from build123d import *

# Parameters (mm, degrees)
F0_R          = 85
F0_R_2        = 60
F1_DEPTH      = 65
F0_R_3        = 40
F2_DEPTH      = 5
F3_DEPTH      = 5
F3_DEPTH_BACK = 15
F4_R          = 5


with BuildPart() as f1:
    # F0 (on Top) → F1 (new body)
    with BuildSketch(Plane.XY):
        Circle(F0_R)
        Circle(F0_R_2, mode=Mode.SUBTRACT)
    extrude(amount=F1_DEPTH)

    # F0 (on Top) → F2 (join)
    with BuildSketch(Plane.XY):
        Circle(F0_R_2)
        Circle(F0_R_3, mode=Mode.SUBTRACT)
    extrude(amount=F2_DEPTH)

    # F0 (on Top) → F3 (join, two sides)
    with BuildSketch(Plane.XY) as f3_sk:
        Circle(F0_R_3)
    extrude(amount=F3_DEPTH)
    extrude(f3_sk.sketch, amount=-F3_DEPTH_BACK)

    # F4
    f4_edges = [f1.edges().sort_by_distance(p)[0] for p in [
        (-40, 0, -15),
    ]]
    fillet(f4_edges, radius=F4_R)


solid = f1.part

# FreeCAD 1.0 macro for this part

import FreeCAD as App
import Part
import Sketcher


def edges_at(feature, points):
    """Names of the edges that pass closest to the given points."""
    edges = feature.Shape.Edges
    near = lambda p: min(range(len(edges)), key=lambda i: edges[i].distToShape(Part.Vertex(*p))[0])
    return sorted({f"Edge{near(p) + 1}" for p in points})

doc = App.newDocument("Part")
body = doc.addObject("PartDesign::Body", "Body")

# Sketch on XY plane
sketch1 = body.newObject("Sketcher::SketchObject", "Sketch")
sketch1.AttachmentSupport = (doc.getObject("XY_Plane"), [""])
sketch1.MapMode = "FlatFace"
sketch1.addGeometry([
    Part.Circle(App.Vector(0, 0, 0), App.Vector(0, 0, 1), 85),
    Part.Circle(App.Vector(0, 0, 0), App.Vector(0, 0, 1), 60),
], False)
sketch1.addConstraint([
    Sketcher.Constraint("Coincident", 0, 3, -1, 1),
    Sketcher.Constraint("Coincident", 1, 3, -1, 1),
    Sketcher.Constraint("Diameter", 0, 170.0),
    Sketcher.Constraint("Diameter", 1, 120.0),
])
pad1 = body.newObject("PartDesign::Pad", "Pad")
pad1.Profile = sketch1
pad1.Length = 65

# Sketch on XY plane
sketch2 = body.newObject("Sketcher::SketchObject", "Sketch001")
sketch2.AttachmentSupport = (doc.getObject("XY_Plane"), [""])
sketch2.MapMode = "FlatFace"
sketch2.addGeometry([
    Part.Circle(App.Vector(0, 0, 0), App.Vector(0, 0, 1), 60),
    Part.Circle(App.Vector(0, 0, 0), App.Vector(0, 0, 1), 40),
], False)
sketch2.addConstraint([
    Sketcher.Constraint("Coincident", 0, 3, -1, 1),
    Sketcher.Constraint("Coincident", 1, 3, -1, 1),
    Sketcher.Constraint("Diameter", 0, 120.0),
    Sketcher.Constraint("Diameter", 1, 80.0),
])
pad2 = body.newObject("PartDesign::Pad", "Pad001")
pad2.Profile = sketch2
pad2.Length = 5

# Sketch on XY plane
sketch3 = body.newObject("Sketcher::SketchObject", "Sketch002")
sketch3.AttachmentSupport = (doc.getObject("XY_Plane"), [""])
sketch3.MapMode = "FlatFace"
sketch3.addGeometry(Part.Circle(App.Vector(0, 0, 0), App.Vector(0, 0, 1), 40), False)
sketch3.addConstraint([
    Sketcher.Constraint("Coincident", 0, 3, -1, 1),
    Sketcher.Constraint("Diameter", 0, 80.0),
])
pad3 = body.newObject("PartDesign::Pad", "Pad002")
pad3.Profile = sketch3
pad3.Type = "TwoLengths"
pad3.Length = 5
pad3.Length2 = 15
doc.recompute()

fillet = body.newObject("PartDesign::Fillet", "Fillet")
fillet.Base = (pad3, edges_at(pad3, [(-40, 0, -15)]))
fillet.Radius = 5

doc.recompute()
